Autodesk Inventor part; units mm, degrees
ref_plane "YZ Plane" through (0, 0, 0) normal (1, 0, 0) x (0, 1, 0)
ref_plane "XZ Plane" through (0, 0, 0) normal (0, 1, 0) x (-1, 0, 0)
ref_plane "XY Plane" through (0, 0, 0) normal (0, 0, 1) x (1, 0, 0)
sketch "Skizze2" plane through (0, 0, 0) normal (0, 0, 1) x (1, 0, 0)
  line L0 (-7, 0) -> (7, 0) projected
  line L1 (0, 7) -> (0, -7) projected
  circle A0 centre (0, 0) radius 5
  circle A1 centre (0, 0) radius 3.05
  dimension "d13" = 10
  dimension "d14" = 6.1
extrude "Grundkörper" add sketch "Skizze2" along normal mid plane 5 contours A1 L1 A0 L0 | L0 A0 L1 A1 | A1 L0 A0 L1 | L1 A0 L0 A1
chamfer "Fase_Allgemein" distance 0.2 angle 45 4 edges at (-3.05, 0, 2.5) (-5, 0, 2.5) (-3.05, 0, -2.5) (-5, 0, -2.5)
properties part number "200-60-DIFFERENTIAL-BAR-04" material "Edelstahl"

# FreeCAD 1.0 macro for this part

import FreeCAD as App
import Part
import Sketcher
from FreeCAD import Vector


def edges_at(feature, points):
    """Names of the edges that pass closest to the given points."""
    edges = feature.Shape.Edges
    near = lambda p: min(range(len(edges)), key=lambda i: edges[i].distToShape(Part.Vertex(*p))[0])
    return sorted({f"Edge{near(p) + 1}" for p in points})

doc = App.newDocument("Part")
params = doc.addObject("Spreadsheet::Sheet", "Params")
for row, (alias, value) in enumerate([
    ("sketch1_diameter", "10 mm"),
    ("sketch1_diameter2", "6.1 mm"),
    ("pad1_length", "5 mm"),
    ("chamfer_size", "0.2 mm"),
], start=1):
    params.set(f"A{row}", alias)
    params.set(f"B{row}", "=" + value)
    params.setAlias(f"B{row}", alias)

body = doc.addObject("PartDesign::Body", "Body")

# Sketch on XY plane
sketch1 = body.newObject("Sketcher::SketchObject", "Sketch")
sketch1.AttachmentSupport = (doc.getObject("XY_Plane"), [""])
sketch1.MapMode = "FlatFace"
sketch1.addGeometry([
    Part.Circle(Vector(0, 0, 0), Vector(0, 0, 1), 5),
    Part.Circle(Vector(0, 0, 0), Vector(0, 0, 1), 3.05),
], False)
sketch1.addConstraint([
    Sketcher.Constraint("Coincident", 0, 3, -1, 1),
    Sketcher.Constraint("Coincident", 1, 3, -1, 1),
    Sketcher.Constraint("Diameter", 0, 10.0),
    Sketcher.Constraint("Diameter", 1, 6.1),
])
sketch1.setExpression("Constraints[2]", "Params.sketch1_diameter")
sketch1.setExpression("Constraints[3]", "Params.sketch1_diameter2")
pad1 = body.newObject("PartDesign::Pad", "Pad")
pad1.Profile = sketch1
pad1.setExpression("Length", "Params.pad1_length")
pad1.Midplane = True
doc.recompute()

chamfer = body.newObject("PartDesign::Chamfer", "Chamfer")
chamfer.Base = (pad1, edges_at(pad1, [
    (-3.05, 0, 2.5),
    (-5, 0, 2.5),
    (-3.05, 0, -2.5),
    (-5, 0, -2.5),
]))
chamfer.setExpression("Size", "Params.chamfer_size")

doc.recompute()
